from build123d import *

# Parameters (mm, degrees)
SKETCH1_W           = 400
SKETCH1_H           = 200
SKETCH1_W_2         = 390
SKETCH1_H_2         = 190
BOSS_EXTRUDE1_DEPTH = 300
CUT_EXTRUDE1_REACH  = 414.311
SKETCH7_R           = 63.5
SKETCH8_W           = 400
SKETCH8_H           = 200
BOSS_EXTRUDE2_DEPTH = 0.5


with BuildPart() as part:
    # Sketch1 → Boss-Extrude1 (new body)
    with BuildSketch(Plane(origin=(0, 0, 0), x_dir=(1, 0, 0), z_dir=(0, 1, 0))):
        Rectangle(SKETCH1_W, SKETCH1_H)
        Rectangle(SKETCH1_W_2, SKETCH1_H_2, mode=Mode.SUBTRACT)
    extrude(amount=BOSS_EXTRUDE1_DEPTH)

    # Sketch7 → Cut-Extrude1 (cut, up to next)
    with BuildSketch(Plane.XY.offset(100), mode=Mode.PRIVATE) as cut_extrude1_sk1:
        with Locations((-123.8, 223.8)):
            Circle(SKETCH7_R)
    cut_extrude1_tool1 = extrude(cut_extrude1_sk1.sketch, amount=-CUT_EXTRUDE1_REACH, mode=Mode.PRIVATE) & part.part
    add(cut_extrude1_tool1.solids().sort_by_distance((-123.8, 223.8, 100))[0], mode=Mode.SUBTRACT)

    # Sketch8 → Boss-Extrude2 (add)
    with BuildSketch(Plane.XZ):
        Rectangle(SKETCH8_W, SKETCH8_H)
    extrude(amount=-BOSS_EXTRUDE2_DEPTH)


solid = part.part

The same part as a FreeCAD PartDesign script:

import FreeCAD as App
import Part
import Sketcher

doc = App.newDocument("Part")
body = doc.addObject("PartDesign::Body", "Body")

sketch1 = doc.addObject("Sketcher::SketchObject", "Sketch")
body.addObject(sketch1)
sketch1.AttachmentSupport = (doc.XZ_Plane, [""])
sketch1.MapMode = "FlatFace"
sketch1.addGeometry([
    Part.LineSegment(App.Vector(-200, -100, 0), App.Vector(-200, 100, 0)),
    Part.LineSegment(App.Vector(-200, 100, 0), App.Vector(200, 100, 0)),
    Part.LineSegment(App.Vector(200, 100, 0), App.Vector(200, -100, 0)),
    Part.LineSegment(App.Vector(200, -100, 0), App.Vector(-200, -100, 0)),
    Part.LineSegment(App.Vector(195, 95, 0), App.Vector(-195, 95, 0)),
    Part.LineSegment(App.Vector(-195, 95, 0), App.Vector(-195, -95, 0)),
    Part.LineSegment(App.Vector(-195, -95, 0), App.Vector(195, -95, 0)),
    Part.LineSegment(App.Vector(195, -95, 0), App.Vector(195, 95, 0)),
], False)
sketch1.addConstraint([
    Sketcher.Constraint("Coincident", 0, 2, 1, 1),
    Sketcher.Constraint("Coincident", 1, 2, 2, 1),
    Sketcher.Constraint("Coincident", 2, 2, 3, 1),
    Sketcher.Constraint("Coincident", 3, 2, 0, 1),
    Sketcher.Constraint("Coincident", 4, 2, 5, 1),
    Sketcher.Constraint("Coincident", 5, 2, 6, 1),
    Sketcher.Constraint("Coincident", 6, 2, 7, 1),
    Sketcher.Constraint("Coincident", 7, 2, 4, 1),
    Sketcher.Constraint("Vertical", 0),
    Sketcher.Constraint("Horizontal", 1),
    Sketcher.Constraint("Vertical", 2),
    Sketcher.Constraint("Horizontal", 3),
    Sketcher.Constraint("Horizontal", 4),
    Sketcher.Constraint("Vertical", 5),
    Sketcher.Constraint("Horizontal", 6),
    Sketcher.Constraint("Vertical", 7),
    Sketcher.Constraint("Symmetric", 0, 2, 2, 2, -1, 1),
    Sketcher.Constraint("Symmetric", 4, 2, 6, 2, -1, 1),
    Sketcher.Constraint("DistanceX", 1, 1, 1, 2, 400.0),
    Sketcher.Constraint("DistanceX", 4, 2, 4, 1, 390.0),
    Sketcher.Constraint("DistanceY", 0, 1, 0, 2, 200.0),
    Sketcher.Constraint("DistanceY", 5, 2, 5, 1, 190.0),
])
pad1 = doc.addObject("PartDesign::Pad", "Pad")
body.addObject(pad1)
pad1.Profile = sketch1
pad1.Length = 300
pad1.Reversed = True

sketch2 = doc.addObject("Sketcher::SketchObject", "Sketch001")
body.addObject(sketch2)
sketch2.AttachmentSupport = (doc.XY_Plane, [""])
sketch2.MapMode = "FlatFace"
sketch2.AttachmentOffset = App.Placement(App.Vector(0, 0, 100), App.Rotation())
sketch2.addGeometry(Part.Circle(App.Vector(-124, 224, 0), App.Vector(0, 0, 1), 64), False)
sketch2.addConstraint([
    Sketcher.Constraint("Diameter", 0, 127.0),
    Sketcher.Constraint("DistanceX", 0, 3, -1, 1, 123.8),
    Sketcher.Constraint("DistanceY", -1, 1, 0, 3, 223.8),
])
pocket1 = doc.addObject("PartDesign::Pocket", "Pocket")
body.addObject(pocket1)
pocket1.Profile = sketch2
pocket1.Type = "UpToFirst"

sketch3 = doc.addObject("Sketcher::SketchObject", "Sketch002")
body.addObject(sketch3)
sketch3.AttachmentSupport = (doc.XZ_Plane, [""])
sketch3.MapMode = "FlatFace"
sketch3.addGeometry([
    Part.LineSegment(App.Vector(-200, 100, 0), App.Vector(-200, -100, 0)),
    Part.LineSegment(App.Vector(-200, -100, 0), App.Vector(200, -100, 0)),
    Part.LineSegment(App.Vector(200, -100, 0), App.Vector(200, 100, 0)),
    Part.LineSegment(App.Vector(200, 100, 0), App.Vector(-200, 100, 0)),
], False)
sketch3.addConstraint([
    Sketcher.Constraint("Coincident", 0, 2, 1, 1),
    Sketcher.Constraint("Coincident", 1, 2, 2, 1),
    Sketcher.Constraint("Coincident", 2, 2, 3, 1),
    Sketcher.Constraint("Coincident", 3, 2, 0, 1),
    Sketcher.Constraint("Vertical", 0),
    Sketcher.Constraint("Horizontal", 1),
    Sketcher.Constraint("Vertical", 2),
    Sketcher.Constraint("Horizontal", 3),
    Sketcher.Constraint("Symmetric", 0, 2, 2, 2, -1, 1),
    Sketcher.Constraint("DistanceX", 1, 1, 1, 2, 400.0),
    Sketcher.Constraint("DistanceY", 0, 2, 0, 1, 200.0),
])
pad2 = doc.addObject("PartDesign::Pad", "Pad001")
body.addObject(pad2)
pad2.Profile = sketch3
pad2.Length = 0.5
pad2.Reversed = True

doc.recompute()
